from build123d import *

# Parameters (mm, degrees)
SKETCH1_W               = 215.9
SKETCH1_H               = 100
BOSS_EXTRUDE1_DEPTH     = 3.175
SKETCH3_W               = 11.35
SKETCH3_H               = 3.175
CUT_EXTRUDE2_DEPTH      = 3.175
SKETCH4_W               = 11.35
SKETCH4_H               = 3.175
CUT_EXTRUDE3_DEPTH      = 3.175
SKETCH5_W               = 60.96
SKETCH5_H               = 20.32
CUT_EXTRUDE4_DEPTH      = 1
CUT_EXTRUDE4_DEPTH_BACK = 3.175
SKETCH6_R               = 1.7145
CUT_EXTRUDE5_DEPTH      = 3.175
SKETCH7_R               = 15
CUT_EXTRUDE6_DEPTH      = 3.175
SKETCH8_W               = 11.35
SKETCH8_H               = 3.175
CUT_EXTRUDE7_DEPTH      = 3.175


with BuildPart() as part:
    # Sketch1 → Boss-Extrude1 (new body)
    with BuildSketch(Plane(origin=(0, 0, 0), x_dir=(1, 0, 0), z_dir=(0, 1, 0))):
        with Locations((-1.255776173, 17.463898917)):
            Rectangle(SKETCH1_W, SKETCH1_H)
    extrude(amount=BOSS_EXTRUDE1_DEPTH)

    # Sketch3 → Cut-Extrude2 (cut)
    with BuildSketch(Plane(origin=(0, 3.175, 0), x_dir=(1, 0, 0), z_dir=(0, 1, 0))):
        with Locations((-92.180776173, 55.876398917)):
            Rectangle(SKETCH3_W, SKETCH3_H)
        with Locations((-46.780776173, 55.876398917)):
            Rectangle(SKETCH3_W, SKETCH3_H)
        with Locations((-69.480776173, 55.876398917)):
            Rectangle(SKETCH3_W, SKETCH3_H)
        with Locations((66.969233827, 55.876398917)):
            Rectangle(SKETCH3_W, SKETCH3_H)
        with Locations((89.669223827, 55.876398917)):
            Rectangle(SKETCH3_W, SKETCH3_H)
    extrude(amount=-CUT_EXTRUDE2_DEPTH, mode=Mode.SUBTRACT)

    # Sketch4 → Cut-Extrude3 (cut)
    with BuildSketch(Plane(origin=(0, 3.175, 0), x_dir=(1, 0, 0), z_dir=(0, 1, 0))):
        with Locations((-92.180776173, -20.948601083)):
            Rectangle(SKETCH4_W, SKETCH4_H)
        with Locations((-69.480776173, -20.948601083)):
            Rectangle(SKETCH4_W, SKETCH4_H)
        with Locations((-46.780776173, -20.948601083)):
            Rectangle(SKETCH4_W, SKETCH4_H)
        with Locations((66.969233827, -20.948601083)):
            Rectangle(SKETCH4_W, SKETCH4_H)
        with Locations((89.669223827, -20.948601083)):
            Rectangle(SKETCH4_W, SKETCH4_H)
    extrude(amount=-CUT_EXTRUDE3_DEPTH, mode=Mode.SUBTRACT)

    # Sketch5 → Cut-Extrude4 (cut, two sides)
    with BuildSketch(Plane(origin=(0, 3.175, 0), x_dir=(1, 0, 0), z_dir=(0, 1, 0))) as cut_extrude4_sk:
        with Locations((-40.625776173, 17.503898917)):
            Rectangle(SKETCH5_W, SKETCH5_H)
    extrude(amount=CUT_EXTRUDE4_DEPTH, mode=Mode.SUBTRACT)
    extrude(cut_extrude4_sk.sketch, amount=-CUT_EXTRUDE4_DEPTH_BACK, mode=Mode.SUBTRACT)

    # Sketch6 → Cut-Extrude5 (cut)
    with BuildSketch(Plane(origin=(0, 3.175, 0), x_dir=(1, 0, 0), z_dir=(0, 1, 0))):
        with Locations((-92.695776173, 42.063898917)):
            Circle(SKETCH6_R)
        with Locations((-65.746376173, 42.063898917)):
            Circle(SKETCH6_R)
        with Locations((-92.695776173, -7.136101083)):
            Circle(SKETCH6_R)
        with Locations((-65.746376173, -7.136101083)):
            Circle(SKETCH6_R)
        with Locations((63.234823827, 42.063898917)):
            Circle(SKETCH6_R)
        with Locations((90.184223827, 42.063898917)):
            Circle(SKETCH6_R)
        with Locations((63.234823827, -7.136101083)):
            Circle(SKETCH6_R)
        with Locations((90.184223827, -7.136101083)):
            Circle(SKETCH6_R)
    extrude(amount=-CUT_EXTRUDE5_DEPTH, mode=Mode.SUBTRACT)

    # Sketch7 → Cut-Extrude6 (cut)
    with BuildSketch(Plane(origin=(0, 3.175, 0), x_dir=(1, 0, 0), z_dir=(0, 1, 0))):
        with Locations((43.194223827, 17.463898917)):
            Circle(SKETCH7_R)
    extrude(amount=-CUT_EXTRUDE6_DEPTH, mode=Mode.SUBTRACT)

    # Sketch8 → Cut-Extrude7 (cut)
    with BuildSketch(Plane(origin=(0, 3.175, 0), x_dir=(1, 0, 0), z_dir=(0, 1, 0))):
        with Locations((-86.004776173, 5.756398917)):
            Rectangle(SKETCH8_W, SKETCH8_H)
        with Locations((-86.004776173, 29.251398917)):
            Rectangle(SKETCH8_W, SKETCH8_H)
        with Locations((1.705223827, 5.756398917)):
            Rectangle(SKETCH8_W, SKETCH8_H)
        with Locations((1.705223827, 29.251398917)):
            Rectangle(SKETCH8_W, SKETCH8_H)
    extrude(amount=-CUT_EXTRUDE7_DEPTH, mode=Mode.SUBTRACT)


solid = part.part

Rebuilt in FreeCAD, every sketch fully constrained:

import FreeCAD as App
import Part
import Sketcher

V = App.Vector
Q = App.Units.Quantity

doc = App.newDocument("Part")
body = doc.addObject("PartDesign::Body", "Body")

# Sketch on XZ plane
sketch1 = body.newObject("Sketcher::SketchObject", "Sketch")
sketch1.AttachmentSupport = (doc.getObject("XZ_Plane"), [""])
sketch1.MapMode = "FlatFace"
sketch1.addGeometry([
    Part.LineSegment(V(-109.205776, -67.463899, 0), V(-109.205776, 32.536101, 0)),
    Part.LineSegment(V(-109.205776, 32.536101, 0), V(106.694224, 32.536101, 0)),
    Part.LineSegment(V(106.694224, 32.536101, 0), V(106.694224, -67.463899, 0)),
    Part.LineSegment(V(106.694224, -67.463899, 0), V(-109.205776, -67.463899, 0)),
], False)
sketch1.addConstraint([
    Sketcher.Constraint("Coincident", 0, 2, 1, 1),
    Sketcher.Constraint("Coincident", 1, 2, 2, 1),
    Sketcher.Constraint("Coincident", 2, 2, 3, 1),
    Sketcher.Constraint("Coincident", 3, 2, 0, 1),
    Sketcher.Constraint("Vertical", 0),
    Sketcher.Constraint("Horizontal", 1),
    Sketcher.Constraint("Vertical", 2),
    Sketcher.Constraint("Horizontal", 3),
    Sketcher.Constraint("DistanceX", 1, 1, 1, 2, Q("8.5 in")),
    Sketcher.Constraint("DistanceY", 0, 1, 0, 2, 100.0),
    Sketcher.Constraint("DistanceY", -1, 1, 0, 2, 32.536101),
    Sketcher.Constraint("DistanceX", 0, 2, -1, 1, 109.205776),
])
pad1 = body.newObject("PartDesign::Pad", "Pad")
pad1.Profile = sketch1
pad1.Length = Q("0.125 in")
pad1.Reversed = True

# Sketch on XZ plane
sketch2 = body.newObject("Sketcher::SketchObject", "Sketch001")
sketch2.AttachmentSupport = (doc.getObject("XZ_Plane"), [""])
sketch2.MapMode = "FlatFace"
sketch2.AttachmentOffset = App.Placement(V(0, 0, -0.125 * 25.4), App.Rotation())
sketch2.addGeometry([
    Part.LineSegment(V(-97.855776, -57.463899, 0), V(-97.855776, -54.288899, 0)),  # 0
    Part.LineSegment(V(-97.855776, -54.288899, 0), V(-86.505776, -54.288899, 0)),  # 1
    Part.LineSegment(V(-86.505776, -54.288899, 0), V(-86.505776, -57.463899, 0)),  # 2
    Part.LineSegment(V(-86.505776, -57.463899, 0), V(-97.855776, -57.463899, 0)),  # 3
    Part.LineSegment(V(-52.455776, -57.463899, 0), V(-52.455776, -54.288899, 0)),  # 4
    Part.LineSegment(V(-52.455776, -54.288899, 0), V(-41.105776, -54.288899, 0)),  # 5
    Part.LineSegment(V(-41.105776, -54.288899, 0), V(-41.105776, -57.463899, 0)),  # 6
    Part.LineSegment(V(-41.105776, -57.463899, 0), V(-52.455776, -57.463899, 0)),  # 7
    Part.LineSegment(V(-75.155776, -57.463899, 0), V(-75.155776, -54.288899, 0)),  # 8
    Part.LineSegment(V(-75.155776, -54.288899, 0), V(-63.805776, -54.288899, 0)),  # 9
    Part.LineSegment(V(-63.805776, -54.288899, 0), V(-63.805776, -57.463899, 0)),  # 10
    Part.LineSegment(V(-63.805776, -57.463899, 0), V(-75.155776, -57.463899, 0)),  # 11
    Part.LineSegment(V(61.294234, -57.463899, 0), V(61.294234, -54.288899, 0)),  # 12
    Part.LineSegment(V(61.294234, -54.288899, 0), V(72.644234, -54.288899, 0)),  # 13
    Part.LineSegment(V(72.644234, -54.288899, 0), V(72.644234, -57.463899, 0)),  # 14
    Part.LineSegment(V(72.644234, -57.463899, 0), V(61.294234, -57.463899, 0)),  # 15
    Part.LineSegment(V(83.994224, -57.463899, 0), V(83.994224, -54.288899, 0)),  # 16
    Part.LineSegment(V(83.994224, -54.288899, 0), V(95.344224, -54.288899, 0)),  # 17
    Part.LineSegment(V(95.344224, -54.288899, 0), V(95.344224, -57.463899, 0)),  # 18
    Part.LineSegment(V(95.344224, -57.463899, 0), V(83.994224, -57.463899, 0)),  # 19
], False)
sketch2.addConstraint([
    Sketcher.Constraint("Coincident", 0, 2, 1, 1),
    Sketcher.Constraint("Coincident", 1, 2, 2, 1),
    Sketcher.Constraint("Coincident", 2, 2, 3, 1),
    Sketcher.Constraint("Coincident", 3, 2, 0, 1),
    Sketcher.Constraint("Coincident", 4, 2, 5, 1),
    Sketcher.Constraint("Coincident", 5, 2, 6, 1),
    Sketcher.Constraint("Coincident", 6, 2, 7, 1),
    Sketcher.Constraint("Coincident", 7, 2, 4, 1),
    Sketcher.Constraint("Coincident", 8, 2, 9, 1),
    Sketcher.Constraint("Coincident", 9, 2, 10, 1),
    Sketcher.Constraint("Coincident", 10, 2, 11, 1),
    Sketcher.Constraint("Coincident", 11, 2, 8, 1),
    Sketcher.Constraint("Coincident", 12, 2, 13, 1),
    Sketcher.Constraint("Coincident", 13, 2, 14, 1),
    Sketcher.Constraint("Coincident", 14, 2, 15, 1),
    Sketcher.Constraint("Coincident", 15, 2, 12, 1),
    Sketcher.Constraint("Coincident", 16, 2, 17, 1),
    Sketcher.Constraint("Coincident", 17, 2, 18, 1),
    Sketcher.Constraint("Coincident", 18, 2, 19, 1),
    Sketcher.Constraint("Coincident", 19, 2, 16, 1),
    Sketcher.Constraint("Vertical", 0),
    Sketcher.Constraint("Horizontal", 1),
    Sketcher.Constraint("Vertical", 2),
    Sketcher.Constraint("Horizontal", 3),
    Sketcher.Constraint("Vertical", 4),
    Sketcher.Constraint("Horizontal", 5),
    Sketcher.Constraint("Vertical", 6),
    Sketcher.Constraint("Horizontal", 7),
    Sketcher.Constraint("Vertical", 8),
    Sketcher.Constraint("Horizontal", 9),
    Sketcher.Constraint("Vertical", 10),
    Sketcher.Constraint("Horizontal", 11),
    Sketcher.Constraint("Vertical", 12),
    Sketcher.Constraint("Horizontal", 13),
    Sketcher.Constraint("Vertical", 14),
    Sketcher.Constraint("Horizontal", 15),
    Sketcher.Constraint("Vertical", 16),
    Sketcher.Constraint("Horizontal", 17),
    Sketcher.Constraint("Vertical", 18),
    Sketcher.Constraint("Horizontal", 19),
    Sketcher.Constraint("Horizontal", 1, 2, 4, 2),
    Sketcher.Constraint("Horizontal", 3, 2, 6, 2),
    Sketcher.Constraint("Horizontal", 5, 2, 8, 2),
    Sketcher.Constraint("Horizontal", 7, 2, 10, 2),
    Sketcher.Constraint("Horizontal", 9, 2, 12, 2),
    Sketcher.Constraint("Horizontal", 11, 2, 14, 2),
    Sketcher.Constraint("Horizontal", 13, 2, 16, 2),
    Sketcher.Constraint("Horizontal", 15, 2, 18, 2),
    Sketcher.Constraint("Equal", 3, 5),
    Sketcher.Constraint("Equal", 7, 9),
    Sketcher.Constraint("Equal", 11, 13),
    Sketcher.Constraint("Equal", 15, 17),
    Sketcher.Constraint("DistanceY", 0, 1, 0, 2, Q("0.125 in")),
    Sketcher.Constraint("DistanceX", 1, 1, 1, 2, 11.35),
    Sketcher.Constraint("DistanceY", 0, 2, -1, 1, 54.288899),
    Sketcher.Constraint("DistanceX", 1, 2, 4, 2, 34.05),
    Sketcher.Constraint("DistanceX", 1, 2, 8, 2, 11.35),
    Sketcher.Constraint("DistanceX", 5, 2, 16, 2, 125.1),
    Sketcher.Constraint("DistanceX", 5, 2, 12, 2, 102.40001),
    Sketcher.Constraint("DistanceX", 0, 2, -1, 1, 97.855776),
])
pocket1 = body.newObject("PartDesign::Pocket", "Pocket")
pocket1.Profile = sketch2
pocket1.Length = Q("0.125 in")
pocket1.Reversed = True

# Sketch on XZ plane
sketch3 = body.newObject("Sketcher::SketchObject", "Sketch002")
sketch3.AttachmentSupport = (doc.getObject("XZ_Plane"), [""])
sketch3.MapMode = "FlatFace"
sketch3.AttachmentOffset = App.Placement(V(0, 0, -0.125 * 25.4), App.Rotation())
sketch3.addGeometry([
    Part.LineSegment(V(-97.855776, 19.361101, 0), V(-97.855776, 22.536101, 0)),  # 0
    Part.LineSegment(V(-97.855776, 22.536101, 0), V(-86.505776, 22.536101, 0)),  # 1
    Part.LineSegment(V(-86.505776, 22.536101, 0), V(-86.505776, 19.361101, 0)),  # 2
    Part.LineSegment(V(-86.505776, 19.361101, 0), V(-97.855776, 19.361101, 0)),  # 3
    Part.LineSegment(V(-75.155776, 19.361101, 0), V(-75.155776, 22.536101, 0)),  # 4
    Part.LineSegment(V(-75.155776, 22.536101, 0), V(-63.805776, 22.536101, 0)),  # 5
    Part.LineSegment(V(-63.805776, 22.536101, 0), V(-63.805776, 19.361101, 0)),  # 6
    Part.LineSegment(V(-63.805776, 19.361101, 0), V(-75.155776, 19.361101, 0)),  # 7
    Part.LineSegment(V(-52.455776, 19.361101, 0), V(-52.455776, 22.536101, 0)),  # 8
    Part.LineSegment(V(-52.455776, 22.536101, 0), V(-41.105776, 22.536101, 0)),  # 9
    Part.LineSegment(V(-41.105776, 22.536101, 0), V(-41.105776, 19.361101, 0)),  # 10
    Part.LineSegment(V(-41.105776, 19.361101, 0), V(-52.455776, 19.361101, 0)),  # 11
    Part.LineSegment(V(61.294234, 19.361101, 0), V(61.294234, 22.536101, 0)),  # 12
    Part.LineSegment(V(61.294234, 22.536101, 0), V(72.644234, 22.536101, 0)),  # 13
    Part.LineSegment(V(72.644234, 22.536101, 0), V(72.644234, 19.361101, 0)),  # 14
    Part.LineSegment(V(72.644234, 19.361101, 0), V(61.294234, 19.361101, 0)),  # 15
    Part.LineSegment(V(83.994224, 19.361101, 0), V(83.994224, 22.536101, 0)),  # 16
    Part.LineSegment(V(83.994224, 22.536101, 0), V(95.344224, 22.536101, 0)),  # 17
    Part.LineSegment(V(95.344224, 22.536101, 0), V(95.344224, 19.361101, 0)),  # 18
    Part.LineSegment(V(95.344224, 19.361101, 0), V(83.994224, 19.361101, 0)),  # 19
], False)
sketch3.addConstraint([
    Sketcher.Constraint("Coincident", 0, 2, 1, 1),
    Sketcher.Constraint("Coincident", 1, 2, 2, 1),
    Sketcher.Constraint("Coincident", 2, 2, 3, 1),
    Sketcher.Constraint("Coincident", 3, 2, 0, 1),
    Sketcher.Constraint("Coincident", 4, 2, 5, 1),
    Sketcher.Constraint("Coincident", 5, 2, 6, 1),
    Sketcher.Constraint("Coincident", 6, 2, 7, 1),
    Sketcher.Constraint("Coincident", 7, 2, 4, 1),
    Sketcher.Constraint("Coincident", 8, 2, 9, 1),
    Sketcher.Constraint("Coincident", 9, 2, 10, 1),
    Sketcher.Constraint("Coincident", 10, 2, 11, 1),
    Sketcher.Constraint("Coincident", 11, 2, 8, 1),
    Sketcher.Constraint("Coincident", 12, 2, 13, 1),
    Sketcher.Constraint("Coincident", 13, 2, 14, 1),
    Sketcher.Constraint("Coincident", 14, 2, 15, 1),
    Sketcher.Constraint("Coincident", 15, 2, 12, 1),
    Sketcher.Constraint("Coincident", 16, 2, 17, 1),
    Sketcher.Constraint("Coincident", 17, 2, 18, 1),
    Sketcher.Constraint("Coincident", 18, 2, 19, 1),
    Sketcher.Constraint("Coincident", 19, 2, 16, 1),
    Sketcher.Constraint("Vertical", 0),
    Sketcher.Constraint("Horizontal", 1),
    Sketcher.Constraint("Vertical", 2),
    Sketcher.Constraint("Horizontal", 3),
    Sketcher.Constraint("Vertical", 4),
    Sketcher.Constraint("Horizontal", 5),
    Sketcher.Constraint("Vertical", 6),
    Sketcher.Constraint("Horizontal", 7),
    Sketcher.Constraint("Vertical", 8),
    Sketcher.Constraint("Horizontal", 9),
    Sketcher.Constraint("Vertical", 10),
    Sketcher.Constraint("Horizontal", 11),
    Sketcher.Constraint("Vertical", 12),
    Sketcher.Constraint("Horizontal", 13),
    Sketcher.Constraint("Vertical", 14),
    Sketcher.Constraint("Horizontal", 15),
    Sketcher.Constraint("Vertical", 16),
    Sketcher.Constraint("Horizontal", 17),
    Sketcher.Constraint("Vertical", 18),
    Sketcher.Constraint("Horizontal", 19),
    Sketcher.Constraint("Horizontal", 1, 2, 4, 2),
    Sketcher.Constraint("Horizontal", 3, 2, 6, 2),
    Sketcher.Constraint("Horizontal", 5, 2, 8, 2),
    Sketcher.Constraint("Horizontal", 7, 2, 10, 2),
    Sketcher.Constraint("Horizontal", 9, 2, 12, 2),
    Sketcher.Constraint("Horizontal", 11, 2, 14, 2),
    Sketcher.Constraint("Horizontal", 13, 2, 16, 2),
    Sketcher.Constraint("Horizontal", 15, 2, 18, 2),
    Sketcher.Constraint("Equal", 3, 5),
    Sketcher.Constraint("Equal", 7, 9),
    Sketcher.Constraint("Equal", 11, 13),
    Sketcher.Constraint("Equal", 15, 17),
    Sketcher.Constraint("DistanceY", 0, 1, 0, 2, Q("0.125 in")),
    Sketcher.Constraint("DistanceX", 1, 1, 1, 2, 11.35),
    Sketcher.Constraint("DistanceY", -1, 1, 0, 2, 22.536101),
    Sketcher.Constraint("DistanceX", 1, 2, 4, 2, 11.35),
    Sketcher.Constraint("DistanceX", 5, 2, 8, 2, 11.35),
    Sketcher.Constraint("DistanceX", 9, 2, 16, 2, 125.1),
    Sketcher.Constraint("DistanceX", 9, 2, 12, 2, 102.40001),
    Sketcher.Constraint("DistanceX", 0, 2, -1, 1, 97.855776),
])
pocket2 = body.newObject("PartDesign::Pocket", "Pocket001")
pocket2.Profile = sketch3
pocket2.Length = Q("0.125 in")
pocket2.Reversed = True

# Sketch on XZ plane
sketch4 = body.newObject("Sketcher::SketchObject", "Sketch003")
sketch4.AttachmentSupport = (doc.getObject("XZ_Plane"), [""])
sketch4.MapMode = "FlatFace"
sketch4.AttachmentOffset = App.Placement(V(0, 0, -0.125 * 25.4), App.Rotation())
sketch4.addGeometry([
    Part.LineSegment(V(-71.105776, -27.663899, 0), V(-71.105776, -7.343899, 0)),
    Part.LineSegment(V(-71.105776, -7.343899, 0), V(-10.145776, -7.343899, 0)),
    Part.LineSegment(V(-10.145776, -7.343899, 0), V(-10.145776, -27.663899, 0)),
    Part.LineSegment(V(-10.145776, -27.663899, 0), V(-71.105776, -27.663899, 0)),
], False)
sketch4.addConstraint([
    Sketcher.Constraint("Coincident", 0, 2, 1, 1),
    Sketcher.Constraint("Coincident", 1, 2, 2, 1),
    Sketcher.Constraint("Coincident", 2, 2, 3, 1),
    Sketcher.Constraint("Coincident", 3, 2, 0, 1),
    Sketcher.Constraint("Vertical", 0),
    Sketcher.Constraint("Horizontal", 1),
    Sketcher.Constraint("Vertical", 2),
    Sketcher.Constraint("Horizontal", 3),
    Sketcher.Constraint("DistanceX", 1, 1, 1, 2, Q("2.4 in")),
    Sketcher.Constraint("DistanceY", 0, 1, 0, 2, Q("0.8 in")),
    Sketcher.Constraint("DistanceY", 0, 2, -1, 1, 7.343899),
    Sketcher.Constraint("DistanceX", 0, 2, -1, 1, 71.105776),
])
pocket3 = body.newObject("PartDesign::Pocket", "Pocket002")
pocket3.Profile = sketch4
pocket3.Type = "ThroughAll"
pocket3.Midplane = True

# Sketch on XZ plane
sketch5 = body.newObject("Sketcher::SketchObject", "Sketch004")
sketch5.AttachmentSupport = (doc.getObject("XZ_Plane"), [""])
sketch5.MapMode = "FlatFace"
sketch5.AttachmentOffset = App.Placement(V(0, 0, -0.125 * 25.4), App.Rotation())
sketch5.addGeometry([
    Part.Circle(V(-92.695776, -42.063899, 0), V(0, 0, 1), 1.7145),  # 0
    Part.Circle(V(-65.746376, -42.063899, 0), V(0, 0, 1), 1.7145),  # 1
    Part.Circle(V(-92.695776, 7.136101, 0), V(0, 0, 1), 1.7145),  # 2
    Part.Circle(V(-65.746376, 7.136101, 0), V(0, 0, 1), 1.7145),  # 3
    Part.Circle(V(63.234824, -42.063899, 0), V(0, 0, 1), 1.7145),  # 4
    Part.Circle(V(90.184224, -42.063899, 0), V(0, 0, 1), 1.7145),  # 5
    Part.Circle(V(63.234824, 7.136101, 0), V(0, 0, 1), 1.7145),  # 6
    Part.Circle(V(90.184224, 7.136101, 0), V(0, 0, 1), 1.7145),  # 7
], False)
sketch5.addConstraint([
    Sketcher.Constraint("Equal", 0, 1),
    Sketcher.Constraint("Equal", 1, 2),
    Sketcher.Constraint("Equal", 2, 3),
    Sketcher.Constraint("Equal", 3, 4),
    Sketcher.Constraint("Equal", 4, 5),
    Sketcher.Constraint("Equal", 5, 6),
    Sketcher.Constraint("Equal", 6, 7),
    Sketcher.Constraint("Horizontal", 0, 3, 1, 3),
    Sketcher.Constraint("Horizontal", 2, 3, 3, 3),
    Sketcher.Constraint("Horizontal", 1, 3, 4, 3),
    Sketcher.Constraint("Horizontal", 4, 3, 5, 3),
    Sketcher.Constraint("Horizontal", 3, 3, 6, 3),
    Sketcher.Constraint("Horizontal", 6, 3, 7, 3),
    Sketcher.Constraint("Vertical", 0, 3, 2, 3),
    Sketcher.Constraint("Vertical", 1, 3, 3, 3),
    Sketcher.Constraint("Vertical", 4, 3, 6, 3),
    Sketcher.Constraint("Vertical", 5, 3, 7, 3),
    Sketcher.Constraint("Diameter", 0, Q("0.135 in")),
    Sketcher.Constraint("DistanceX", 0, 3, 5, 3, Q("7.2 in")),
    Sketcher.Constraint("DistanceX", 0, 3, 1, 3, Q("1.061 in")),
    Sketcher.Constraint("DistanceX", 1, 3, 4, 3, Q("5.078 in")),
    Sketcher.Constraint("DistanceY", 0, 3, -1, 1, 42.063899),
    Sketcher.Constraint("DistanceY", -1, 1, 2, 3, 7.136101),
    Sketcher.Constraint("DistanceX", 0, 3, -1, 1, 92.695776),
])
pocket4 = body.newObject("PartDesign::Pocket", "Pocket003")
pocket4.Profile = sketch5
pocket4.Length = Q("0.125 in")
pocket4.Reversed = True

# Sketch on XZ plane
sketch6 = body.newObject("Sketcher::SketchObject", "Sketch005")
sketch6.AttachmentSupport = (doc.getObject("XZ_Plane"), [""])
sketch6.MapMode = "FlatFace"
sketch6.AttachmentOffset = App.Placement(V(0, 0, -0.125 * 25.4), App.Rotation())
sketch6.addGeometry(Part.Circle(V(43.194224, -17.463899, 0), V(0, 0, 1), 15), False)
sketch6.addConstraint([
    Sketcher.Constraint("Diameter", 0, 30.0),
    Sketcher.Constraint("DistanceY", 0, 3, -1, 1, 17.463899),
    Sketcher.Constraint("DistanceX", -1, 1, 0, 3, 43.194224),
])
pocket5 = body.newObject("PartDesign::Pocket", "Pocket004")
pocket5.Profile = sketch6
pocket5.Length = Q("0.125 in")
pocket5.Reversed = True

# Sketch on XZ plane
sketch7 = body.newObject("Sketcher::SketchObject", "Sketch006")
sketch7.AttachmentSupport = (doc.getObject("XZ_Plane"), [""])
sketch7.MapMode = "FlatFace"
sketch7.AttachmentOffset = App.Placement(V(0, 0, -0.125 * 25.4), App.Rotation())
sketch7.addGeometry([
    Part.LineSegment(V(-91.679776, -7.343899, 0), V(-91.679776, -4.168899, 0)),  # 0
    Part.LineSegment(V(-91.679776, -4.168899, 0), V(-80.329776, -4.168899, 0)),  # 1
    Part.LineSegment(V(-80.329776, -4.168899, 0), V(-80.329776, -7.343899, 0)),  # 2
    Part.LineSegment(V(-80.329776, -7.343899, 0), V(-91.679776, -7.343899, 0)),  # 3
    Part.LineSegment(V(-91.679776, -30.838899, 0), V(-91.679776, -27.663899, 0)),  # 4
    Part.LineSegment(V(-91.679776, -27.663899, 0), V(-80.329776, -27.663899, 0)),  # 5
    Part.LineSegment(V(-80.329776, -27.663899, 0), V(-80.329776, -30.838899, 0)),  # 6
    Part.LineSegment(V(-80.329776, -30.838899, 0), V(-91.679776, -30.838899, 0)),  # 7
    Part.LineSegment(V(-3.969776, -7.343899, 0), V(-3.969776, -4.168899, 0)),  # 8
    Part.LineSegment(V(-3.969776, -4.168899, 0), V(7.380224, -4.168899, 0)),  # 9
    Part.LineSegment(V(7.380224, -4.168899, 0), V(7.380224, -7.343899, 0)),  # 10
    Part.LineSegment(V(7.380224, -7.343899, 0), V(-3.969776, -7.343899, 0)),  # 11
    Part.LineSegment(V(-3.969776, -30.838899, 0), V(-3.969776, -27.663899, 0)),  # 12
    Part.LineSegment(V(-3.969776, -27.663899, 0), V(7.380224, -27.663899, 0)),  # 13
    Part.LineSegment(V(7.380224, -27.663899, 0), V(7.380224, -30.838899, 0)),  # 14
    Part.LineSegment(V(7.380224, -30.838899, 0), V(-3.969776, -30.838899, 0)),  # 15
], False)
sketch7.addConstraint([
    Sketcher.Constraint("Coincident", 0, 2, 1, 1),
    Sketcher.Constraint("Coincident", 1, 2, 2, 1),
    Sketcher.Constraint("Coincident", 2, 2, 3, 1),
    Sketcher.Constraint("Coincident", 3, 2, 0, 1),
    Sketcher.Constraint("Coincident", 4, 2, 5, 1),
    Sketcher.Constraint("Coincident", 5, 2, 6, 1),
    Sketcher.Constraint("Coincident", 6, 2, 7, 1),
    Sketcher.Constraint("Coincident", 7, 2, 4, 1),
    Sketcher.Constraint("Coincident", 8, 2, 9, 1),
    Sketcher.Constraint("Coincident", 9, 2, 10, 1),
    Sketcher.Constraint("Coincident", 10, 2, 11, 1),
    Sketcher.Constraint("Coincident", 11, 2, 8, 1),
    Sketcher.Constraint("Coincident", 12, 2, 13, 1),
    Sketcher.Constraint("Coincident", 13, 2, 14, 1),
    Sketcher.Constraint("Coincident", 14, 2, 15, 1),
    Sketcher.Constraint("Coincident", 15, 2, 12, 1),
    Sketcher.Constraint("Vertical", 0),
    Sketcher.Constraint("Horizontal", 1),
    Sketcher.Constraint("Vertical", 2),
    Sketcher.Constraint("Horizontal", 3),
    Sketcher.Constraint("Vertical", 4),
    Sketcher.Constraint("Horizontal", 5),
    Sketcher.Constraint("Vertical", 6),
    Sketcher.Constraint("Horizontal", 7),
    Sketcher.Constraint("Vertical", 8),
    Sketcher.Constraint("Horizontal", 9),
    Sketcher.Constraint("Vertical", 10),
    Sketcher.Constraint("Horizontal", 11),
    Sketcher.Constraint("Vertical", 12),
    Sketcher.Constraint("Horizontal", 13),
    Sketcher.Constraint("Vertical", 14),
    Sketcher.Constraint("Horizontal", 15),
    Sketcher.Constraint("Horizontal", 1, 2, 8, 2),
    Sketcher.Constraint("Horizontal", 3, 2, 10, 2),
    Sketcher.Constraint("Horizontal", 5, 2, 12, 2),
    Sketcher.Constraint("Horizontal", 7, 2, 14, 2),
    Sketcher.Constraint("Vertical", 3, 2, 4, 2),
    Sketcher.Constraint("Vertical", 2, 2, 5, 2),
    Sketcher.Constraint("Vertical", 11, 2, 12, 2),
    Sketcher.Constraint("Vertical", 10, 2, 13, 2),
    Sketcher.Constraint("Equal", 7, 9),
    Sketcher.Constraint("Equal", 2, 4),
    Sketcher.Constraint("DistanceY", 4, 2, 3, 2, Q("0.8 in")),
    Sketcher.Constraint("DistanceY", 0, 1, 0, 2, Q("0.125 in")),
    Sketcher.Constraint("DistanceX", 1, 1, 1, 2, 11.35),
    Sketcher.Constraint("DistanceY", 0, 2, -1, 1, 4.168899),
    Sketcher.Constraint("DistanceX", 1, 2, 8, 2, 76.36),
    Sketcher.Constraint("DistanceX", 0, 2, -1, 1, 91.679776),
])
pocket6 = body.newObject("PartDesign::Pocket", "Pocket005")
pocket6.Profile = sketch7
pocket6.Length = Q("0.125 in")
pocket6.Reversed = True

doc.recompute()
